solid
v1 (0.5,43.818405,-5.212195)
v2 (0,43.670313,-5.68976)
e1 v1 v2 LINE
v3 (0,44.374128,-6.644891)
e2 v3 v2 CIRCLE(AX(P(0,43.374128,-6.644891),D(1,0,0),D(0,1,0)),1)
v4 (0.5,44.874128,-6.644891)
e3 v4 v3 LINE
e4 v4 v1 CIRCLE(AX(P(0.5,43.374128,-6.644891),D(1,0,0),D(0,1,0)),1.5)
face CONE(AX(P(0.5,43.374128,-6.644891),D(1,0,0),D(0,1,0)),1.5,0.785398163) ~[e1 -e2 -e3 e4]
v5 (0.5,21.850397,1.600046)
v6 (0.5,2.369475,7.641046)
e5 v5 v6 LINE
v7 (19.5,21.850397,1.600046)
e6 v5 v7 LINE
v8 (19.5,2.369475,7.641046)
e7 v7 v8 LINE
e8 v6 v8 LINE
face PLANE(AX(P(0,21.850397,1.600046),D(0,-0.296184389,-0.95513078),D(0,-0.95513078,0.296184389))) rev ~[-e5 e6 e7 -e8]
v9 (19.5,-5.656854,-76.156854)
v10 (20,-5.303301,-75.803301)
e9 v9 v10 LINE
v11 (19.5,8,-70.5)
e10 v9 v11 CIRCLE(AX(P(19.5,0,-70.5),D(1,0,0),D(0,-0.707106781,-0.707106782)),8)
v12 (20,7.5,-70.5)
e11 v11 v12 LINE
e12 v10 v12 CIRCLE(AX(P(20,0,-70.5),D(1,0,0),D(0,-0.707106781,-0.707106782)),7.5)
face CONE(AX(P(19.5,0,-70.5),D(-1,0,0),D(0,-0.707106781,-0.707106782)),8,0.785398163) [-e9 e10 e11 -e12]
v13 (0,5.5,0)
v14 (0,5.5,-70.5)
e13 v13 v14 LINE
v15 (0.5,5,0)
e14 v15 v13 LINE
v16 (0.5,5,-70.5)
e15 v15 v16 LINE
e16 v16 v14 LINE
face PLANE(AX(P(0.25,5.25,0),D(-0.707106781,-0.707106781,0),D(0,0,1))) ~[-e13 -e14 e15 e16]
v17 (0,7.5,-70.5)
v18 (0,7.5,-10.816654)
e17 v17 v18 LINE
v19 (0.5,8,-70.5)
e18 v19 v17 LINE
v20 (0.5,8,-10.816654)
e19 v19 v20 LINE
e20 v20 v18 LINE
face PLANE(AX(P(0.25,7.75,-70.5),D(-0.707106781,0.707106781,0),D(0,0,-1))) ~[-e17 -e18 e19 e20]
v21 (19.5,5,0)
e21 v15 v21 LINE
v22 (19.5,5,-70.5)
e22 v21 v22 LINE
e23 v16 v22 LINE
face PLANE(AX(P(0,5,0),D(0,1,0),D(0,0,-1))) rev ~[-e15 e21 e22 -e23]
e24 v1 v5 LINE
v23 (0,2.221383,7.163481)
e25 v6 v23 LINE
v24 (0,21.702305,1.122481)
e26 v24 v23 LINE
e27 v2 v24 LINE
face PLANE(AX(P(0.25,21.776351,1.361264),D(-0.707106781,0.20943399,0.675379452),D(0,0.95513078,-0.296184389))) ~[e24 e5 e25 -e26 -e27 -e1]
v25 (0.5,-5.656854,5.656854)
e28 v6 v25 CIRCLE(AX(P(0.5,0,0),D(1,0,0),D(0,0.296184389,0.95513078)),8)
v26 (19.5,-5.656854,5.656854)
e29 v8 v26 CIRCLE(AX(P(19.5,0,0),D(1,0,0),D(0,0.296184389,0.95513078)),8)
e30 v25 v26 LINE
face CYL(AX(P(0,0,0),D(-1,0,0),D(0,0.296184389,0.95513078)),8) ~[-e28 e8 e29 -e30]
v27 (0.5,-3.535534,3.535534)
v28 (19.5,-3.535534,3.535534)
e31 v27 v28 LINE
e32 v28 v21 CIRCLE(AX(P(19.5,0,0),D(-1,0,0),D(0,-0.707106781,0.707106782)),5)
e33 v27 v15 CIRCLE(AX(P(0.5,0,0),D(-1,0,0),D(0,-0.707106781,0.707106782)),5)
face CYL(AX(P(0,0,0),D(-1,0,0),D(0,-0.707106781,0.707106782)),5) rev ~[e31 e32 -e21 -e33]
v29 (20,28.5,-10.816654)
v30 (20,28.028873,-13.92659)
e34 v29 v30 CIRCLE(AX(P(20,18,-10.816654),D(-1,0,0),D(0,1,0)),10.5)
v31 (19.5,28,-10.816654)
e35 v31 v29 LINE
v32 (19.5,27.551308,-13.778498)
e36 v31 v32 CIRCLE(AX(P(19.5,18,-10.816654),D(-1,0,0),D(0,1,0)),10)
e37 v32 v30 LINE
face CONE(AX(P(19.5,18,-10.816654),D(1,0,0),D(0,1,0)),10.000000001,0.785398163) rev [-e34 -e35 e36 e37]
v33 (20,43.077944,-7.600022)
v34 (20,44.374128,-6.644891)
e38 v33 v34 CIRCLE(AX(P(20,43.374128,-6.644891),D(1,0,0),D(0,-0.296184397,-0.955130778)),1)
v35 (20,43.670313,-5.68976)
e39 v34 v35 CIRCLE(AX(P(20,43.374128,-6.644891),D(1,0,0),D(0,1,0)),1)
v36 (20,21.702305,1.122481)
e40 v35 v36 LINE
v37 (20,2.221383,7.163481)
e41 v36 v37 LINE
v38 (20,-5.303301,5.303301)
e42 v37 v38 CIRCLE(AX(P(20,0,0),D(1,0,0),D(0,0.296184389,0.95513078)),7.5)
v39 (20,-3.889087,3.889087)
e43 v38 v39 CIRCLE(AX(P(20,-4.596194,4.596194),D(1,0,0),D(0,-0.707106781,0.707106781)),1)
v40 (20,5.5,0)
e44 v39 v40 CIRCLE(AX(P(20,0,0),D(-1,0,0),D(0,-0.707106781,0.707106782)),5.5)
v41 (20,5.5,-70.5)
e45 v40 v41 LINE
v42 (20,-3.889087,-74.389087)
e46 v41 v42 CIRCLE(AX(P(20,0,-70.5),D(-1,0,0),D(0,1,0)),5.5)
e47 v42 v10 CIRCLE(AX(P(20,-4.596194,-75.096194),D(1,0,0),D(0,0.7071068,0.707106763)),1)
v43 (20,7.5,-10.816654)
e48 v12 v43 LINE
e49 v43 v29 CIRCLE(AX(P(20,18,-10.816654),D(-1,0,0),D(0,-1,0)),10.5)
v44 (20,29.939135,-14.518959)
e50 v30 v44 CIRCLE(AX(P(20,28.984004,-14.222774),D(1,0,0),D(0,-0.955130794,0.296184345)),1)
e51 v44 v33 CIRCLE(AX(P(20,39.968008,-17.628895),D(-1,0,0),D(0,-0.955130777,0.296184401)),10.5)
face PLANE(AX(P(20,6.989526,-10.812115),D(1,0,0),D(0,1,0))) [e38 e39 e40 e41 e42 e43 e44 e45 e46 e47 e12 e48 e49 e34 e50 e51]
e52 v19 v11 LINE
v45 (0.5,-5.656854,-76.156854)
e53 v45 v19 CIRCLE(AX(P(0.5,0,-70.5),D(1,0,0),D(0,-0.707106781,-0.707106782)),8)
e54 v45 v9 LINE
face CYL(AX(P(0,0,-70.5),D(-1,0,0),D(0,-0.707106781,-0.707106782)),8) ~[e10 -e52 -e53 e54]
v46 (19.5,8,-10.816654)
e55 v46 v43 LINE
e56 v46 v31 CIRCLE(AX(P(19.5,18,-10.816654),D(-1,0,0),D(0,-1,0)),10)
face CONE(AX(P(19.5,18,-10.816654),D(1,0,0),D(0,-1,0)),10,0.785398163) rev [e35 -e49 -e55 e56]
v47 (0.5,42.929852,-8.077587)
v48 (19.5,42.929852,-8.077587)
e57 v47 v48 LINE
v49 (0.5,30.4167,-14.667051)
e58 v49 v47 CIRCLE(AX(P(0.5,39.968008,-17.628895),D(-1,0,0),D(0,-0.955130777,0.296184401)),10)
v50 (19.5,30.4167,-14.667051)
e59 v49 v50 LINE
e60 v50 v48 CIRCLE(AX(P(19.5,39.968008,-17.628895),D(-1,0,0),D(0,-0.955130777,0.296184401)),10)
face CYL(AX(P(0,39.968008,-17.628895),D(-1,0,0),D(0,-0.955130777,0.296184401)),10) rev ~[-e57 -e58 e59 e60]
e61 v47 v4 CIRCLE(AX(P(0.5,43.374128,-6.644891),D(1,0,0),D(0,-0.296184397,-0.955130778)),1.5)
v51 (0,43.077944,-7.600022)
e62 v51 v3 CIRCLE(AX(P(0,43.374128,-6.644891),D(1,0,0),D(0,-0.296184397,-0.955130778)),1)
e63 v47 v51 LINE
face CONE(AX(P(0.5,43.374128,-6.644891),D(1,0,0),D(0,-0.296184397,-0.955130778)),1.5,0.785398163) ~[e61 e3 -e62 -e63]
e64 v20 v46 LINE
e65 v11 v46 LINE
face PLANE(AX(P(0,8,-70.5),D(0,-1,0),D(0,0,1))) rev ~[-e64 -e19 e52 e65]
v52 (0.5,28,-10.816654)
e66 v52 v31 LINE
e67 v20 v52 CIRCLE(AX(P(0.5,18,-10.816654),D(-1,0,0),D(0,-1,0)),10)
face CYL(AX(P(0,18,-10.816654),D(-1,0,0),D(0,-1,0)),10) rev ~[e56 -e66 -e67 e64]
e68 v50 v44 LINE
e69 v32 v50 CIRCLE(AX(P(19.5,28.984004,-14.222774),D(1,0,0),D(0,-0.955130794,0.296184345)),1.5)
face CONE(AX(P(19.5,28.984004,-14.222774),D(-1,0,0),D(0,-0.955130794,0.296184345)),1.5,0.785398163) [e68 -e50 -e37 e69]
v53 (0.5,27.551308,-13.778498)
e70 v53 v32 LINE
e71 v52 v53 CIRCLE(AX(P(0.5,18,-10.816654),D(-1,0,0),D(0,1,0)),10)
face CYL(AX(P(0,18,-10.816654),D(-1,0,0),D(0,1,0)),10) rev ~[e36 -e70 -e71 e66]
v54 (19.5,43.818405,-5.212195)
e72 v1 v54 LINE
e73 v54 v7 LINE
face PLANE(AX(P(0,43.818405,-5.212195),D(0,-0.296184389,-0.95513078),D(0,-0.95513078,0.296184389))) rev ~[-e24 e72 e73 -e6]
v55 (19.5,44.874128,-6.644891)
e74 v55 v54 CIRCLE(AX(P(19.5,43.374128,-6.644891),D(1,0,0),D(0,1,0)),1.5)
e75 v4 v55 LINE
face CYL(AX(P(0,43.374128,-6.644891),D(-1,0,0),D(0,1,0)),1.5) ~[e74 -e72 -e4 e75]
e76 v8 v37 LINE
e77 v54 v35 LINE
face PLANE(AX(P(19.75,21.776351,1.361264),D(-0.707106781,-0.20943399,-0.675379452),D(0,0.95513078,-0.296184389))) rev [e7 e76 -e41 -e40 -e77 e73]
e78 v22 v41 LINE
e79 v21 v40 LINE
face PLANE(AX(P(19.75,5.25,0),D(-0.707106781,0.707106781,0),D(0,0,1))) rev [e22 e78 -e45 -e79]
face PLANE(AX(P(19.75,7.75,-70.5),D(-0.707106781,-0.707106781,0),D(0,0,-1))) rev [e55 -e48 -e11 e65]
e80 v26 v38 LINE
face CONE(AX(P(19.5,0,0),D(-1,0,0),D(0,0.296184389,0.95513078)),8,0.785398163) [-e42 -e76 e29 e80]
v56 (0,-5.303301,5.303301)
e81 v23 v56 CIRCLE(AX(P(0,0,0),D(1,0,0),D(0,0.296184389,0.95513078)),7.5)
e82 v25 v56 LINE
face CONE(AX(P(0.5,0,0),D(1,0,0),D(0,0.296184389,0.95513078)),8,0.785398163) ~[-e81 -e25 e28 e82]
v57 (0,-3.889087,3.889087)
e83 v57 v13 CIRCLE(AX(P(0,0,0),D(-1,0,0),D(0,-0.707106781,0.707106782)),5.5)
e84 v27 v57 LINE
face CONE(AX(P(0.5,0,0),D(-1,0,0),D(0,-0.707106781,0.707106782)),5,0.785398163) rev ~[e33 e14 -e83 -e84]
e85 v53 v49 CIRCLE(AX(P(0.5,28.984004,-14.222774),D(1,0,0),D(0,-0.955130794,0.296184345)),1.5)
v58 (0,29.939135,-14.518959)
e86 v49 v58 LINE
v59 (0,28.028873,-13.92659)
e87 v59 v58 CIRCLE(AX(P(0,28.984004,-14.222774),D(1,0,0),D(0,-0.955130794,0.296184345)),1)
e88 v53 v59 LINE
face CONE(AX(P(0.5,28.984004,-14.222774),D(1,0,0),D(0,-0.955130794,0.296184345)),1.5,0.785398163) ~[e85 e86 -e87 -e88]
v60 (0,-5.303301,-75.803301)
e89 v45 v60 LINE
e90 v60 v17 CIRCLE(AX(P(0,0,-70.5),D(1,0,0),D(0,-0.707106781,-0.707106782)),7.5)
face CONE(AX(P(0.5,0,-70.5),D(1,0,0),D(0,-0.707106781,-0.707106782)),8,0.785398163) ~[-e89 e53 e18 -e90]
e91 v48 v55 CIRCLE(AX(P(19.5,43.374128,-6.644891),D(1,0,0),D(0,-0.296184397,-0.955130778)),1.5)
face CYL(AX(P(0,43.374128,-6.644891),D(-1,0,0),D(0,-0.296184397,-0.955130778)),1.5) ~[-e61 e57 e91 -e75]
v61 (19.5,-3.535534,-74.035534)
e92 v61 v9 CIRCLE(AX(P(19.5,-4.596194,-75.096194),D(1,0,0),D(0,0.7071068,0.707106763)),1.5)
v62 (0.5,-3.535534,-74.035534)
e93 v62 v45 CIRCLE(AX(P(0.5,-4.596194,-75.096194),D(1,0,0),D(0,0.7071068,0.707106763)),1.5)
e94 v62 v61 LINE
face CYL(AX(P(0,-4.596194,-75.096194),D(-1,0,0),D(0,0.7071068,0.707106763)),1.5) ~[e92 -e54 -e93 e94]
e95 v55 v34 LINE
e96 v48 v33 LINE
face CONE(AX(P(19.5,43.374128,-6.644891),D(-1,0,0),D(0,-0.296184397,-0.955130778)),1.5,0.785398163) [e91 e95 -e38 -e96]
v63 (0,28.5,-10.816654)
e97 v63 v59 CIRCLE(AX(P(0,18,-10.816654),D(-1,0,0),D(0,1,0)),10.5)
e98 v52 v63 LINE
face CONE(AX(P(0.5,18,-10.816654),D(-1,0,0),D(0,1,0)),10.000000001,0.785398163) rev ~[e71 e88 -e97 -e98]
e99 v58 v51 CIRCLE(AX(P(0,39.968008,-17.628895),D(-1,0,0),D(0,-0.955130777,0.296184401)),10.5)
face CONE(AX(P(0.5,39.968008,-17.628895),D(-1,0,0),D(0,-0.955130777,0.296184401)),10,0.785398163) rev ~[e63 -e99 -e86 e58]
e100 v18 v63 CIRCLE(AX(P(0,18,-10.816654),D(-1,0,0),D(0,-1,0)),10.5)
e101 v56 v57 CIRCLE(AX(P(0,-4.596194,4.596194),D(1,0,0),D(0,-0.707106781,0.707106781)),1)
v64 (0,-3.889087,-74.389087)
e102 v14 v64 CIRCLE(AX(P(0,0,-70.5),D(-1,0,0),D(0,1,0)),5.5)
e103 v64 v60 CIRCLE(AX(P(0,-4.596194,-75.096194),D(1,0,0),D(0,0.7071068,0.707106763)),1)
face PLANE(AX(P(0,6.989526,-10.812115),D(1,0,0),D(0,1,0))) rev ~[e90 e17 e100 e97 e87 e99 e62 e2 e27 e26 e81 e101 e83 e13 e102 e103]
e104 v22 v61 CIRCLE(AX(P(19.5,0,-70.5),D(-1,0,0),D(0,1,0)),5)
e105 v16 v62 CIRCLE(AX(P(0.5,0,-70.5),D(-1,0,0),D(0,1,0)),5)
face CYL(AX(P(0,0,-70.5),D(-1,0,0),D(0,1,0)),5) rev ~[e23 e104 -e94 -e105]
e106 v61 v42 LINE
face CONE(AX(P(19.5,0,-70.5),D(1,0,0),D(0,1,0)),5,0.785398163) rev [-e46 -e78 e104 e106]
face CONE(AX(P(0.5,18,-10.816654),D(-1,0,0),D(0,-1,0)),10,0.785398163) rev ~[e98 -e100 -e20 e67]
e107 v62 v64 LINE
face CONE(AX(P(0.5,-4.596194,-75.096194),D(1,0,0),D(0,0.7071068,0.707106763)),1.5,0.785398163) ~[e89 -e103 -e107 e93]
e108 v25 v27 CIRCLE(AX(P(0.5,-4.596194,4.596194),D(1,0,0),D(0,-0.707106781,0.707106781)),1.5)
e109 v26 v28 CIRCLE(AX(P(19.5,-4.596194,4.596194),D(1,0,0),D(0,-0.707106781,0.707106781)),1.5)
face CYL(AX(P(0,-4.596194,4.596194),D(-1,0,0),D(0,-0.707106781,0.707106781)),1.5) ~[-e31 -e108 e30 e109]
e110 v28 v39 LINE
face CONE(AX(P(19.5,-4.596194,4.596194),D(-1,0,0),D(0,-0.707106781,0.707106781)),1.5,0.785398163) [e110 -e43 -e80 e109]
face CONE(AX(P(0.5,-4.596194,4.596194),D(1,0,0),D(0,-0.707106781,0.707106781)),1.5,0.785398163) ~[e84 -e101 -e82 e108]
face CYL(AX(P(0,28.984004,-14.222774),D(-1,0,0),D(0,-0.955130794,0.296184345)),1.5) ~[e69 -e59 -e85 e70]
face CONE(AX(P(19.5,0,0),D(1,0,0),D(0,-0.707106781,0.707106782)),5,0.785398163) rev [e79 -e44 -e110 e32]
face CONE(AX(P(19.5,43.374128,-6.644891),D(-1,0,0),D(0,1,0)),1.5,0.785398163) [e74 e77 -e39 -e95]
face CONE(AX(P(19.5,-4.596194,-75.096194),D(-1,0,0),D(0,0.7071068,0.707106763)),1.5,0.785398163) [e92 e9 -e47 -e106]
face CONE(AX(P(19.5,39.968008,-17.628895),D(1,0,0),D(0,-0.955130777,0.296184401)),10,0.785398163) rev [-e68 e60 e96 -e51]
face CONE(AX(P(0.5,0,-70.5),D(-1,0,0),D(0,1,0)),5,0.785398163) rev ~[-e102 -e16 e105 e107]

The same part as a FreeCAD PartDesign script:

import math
import FreeCAD as App
import Part
import Sketcher
from FreeCAD import Vector


def edges_at(feature, points):
    """Names of the edges that pass closest to the given points."""
    edges = feature.Shape.Edges
    near = lambda p: min(range(len(edges)), key=lambda i: edges[i].distToShape(Part.Vertex(*p))[0])
    return sorted({f"Edge{near(p) + 1}" for p in points})

doc = App.newDocument("Part")
body = doc.addObject("PartDesign::Body", "Body")

# Sketch on YZ plane
sketch1 = body.newObject("Sketcher::SketchObject", "Sketch")
sketch1.AttachmentSupport = (doc.getObject("YZ_Plane"), [""])
sketch1.MapMode = "FlatFace"
sketch1.addGeometry(Part.ArcOfCircle(Part.Circle(Vector(0, 0, 0), Vector(0, 0, 1), 8), math.radians(73), math.radians(135)), False)
sketch1.addGeometry(Part.ArcOfCircle(Part.Circle(Vector(-4.6, 4.6, 0), Vector(0, 0, 1), 1.5), math.radians(135), math.radians(315)), False)
sketch1.addGeometry(Part.ArcOfCircle(Part.Circle(Vector(0, 0, 0), Vector(0, 0, 1), 5), math.radians(0), math.radians(135)), False)
sketch1.addGeometry(Part.LineSegment(Vector(5, 0, 0), Vector(5, -70.5, 0)), False)
sketch1.addGeometry(Part.ArcOfCircle(Part.Circle(Vector(0, -70.5, 0), Vector(0, 0, 1), 5), math.radians(-135), math.radians(0)), False)
sketch1.addGeometry(Part.ArcOfCircle(Part.Circle(Vector(-4.6, -75.1, 0), Vector(0, 0, 1), 1.5), math.radians(45), math.radians(225)), False)
sketch1.addGeometry(Part.ArcOfCircle(Part.Circle(Vector(0, -70.5, 0), Vector(0, 0, 1), 8), math.radians(-135), math.radians(0)), False)
sketch1.addGeometry(Part.LineSegment(Vector(8, -70.5, 0), Vector(8, -10.8, 0)), False)
sketch1.addGeometry(Part.ArcOfCircle(Part.Circle(Vector(18, -10.8, 0), Vector(0, 0, 1), 10), math.radians(0), math.radians(180)), False)
sketch1.addGeometry(Part.ArcOfCircle(Part.Circle(Vector(18, -10.8, 0), Vector(0, 0, 1), 10), math.radians(-17.23), math.radians(0)), False)
sketch1.addGeometry(Part.ArcOfCircle(Part.Circle(Vector(29, -14.2, 0), Vector(0, 0, 1), 1.5), math.radians(163), math.radians(343)), False)
sketch1.addGeometry(Part.ArcOfCircle(Part.Circle(Vector(40, -17.6, 0), Vector(0, 0, 1), 10), math.radians(73), math.radians(163)), False)
sketch1.addGeometry(Part.ArcOfCircle(Part.Circle(Vector(43.4, -6.6, 0), Vector(0, 0, 1), 1.5), math.radians(-107), math.radians(0)), False)
sketch1.addGeometry(Part.ArcOfCircle(Part.Circle(Vector(43.4, -6.6, 0), Vector(0, 0, 1), 1.5), math.radians(0), math.radians(73)), False)
sketch1.addGeometry(Part.LineSegment(Vector(43.8, -5.2, 0), Vector(21.9, 1.6, 0)), False)
sketch1.addGeometry(Part.LineSegment(Vector(21.9, 1.6, 0), Vector(2.4, 7.6, 0)), False)
sketch1.addConstraint(Sketcher.Constraint("Tangent", 0, 2, 1, 1))
sketch1.addConstraint(Sketcher.Constraint("Tangent", 1, 2, 2, 2))
sketch1.addConstraint(Sketcher.Constraint("Tangent", 2, 1, 3, 1))
sketch1.addConstraint(Sketcher.Constraint("Tangent", 3, 2, 4, 2))
sketch1.addConstraint(Sketcher.Constraint("Tangent", 4, 1, 5, 1))
sketch1.addConstraint(Sketcher.Constraint("Tangent", 5, 2, 6, 1))
sketch1.addConstraint(Sketcher.Constraint("Tangent", 6, 2, 7, 1))
sketch1.addConstraint(Sketcher.Constraint("Tangent", 7, 2, 8, 2))
sketch1.addConstraint(Sketcher.Constraint("Tangent", 8, 1, 9, 2))
sketch1.addConstraint(Sketcher.Constraint("Tangent", 9, 1, 10, 1))
sketch1.addConstraint(Sketcher.Constraint("Tangent", 10, 2, 11, 2))
sketch1.addConstraint(Sketcher.Constraint("Tangent", 11, 1, 12, 1))
sketch1.addConstraint(Sketcher.Constraint("Tangent", 12, 2, 13, 1))
sketch1.addConstraint(Sketcher.Constraint("Tangent", 13, 2, 14, 1))
sketch1.addConstraint(Sketcher.Constraint("Coincident", 14, 2, 15, 1))
sketch1.addConstraint(Sketcher.Constraint("Tangent", 15, 2, 0, 1))
sketch1.addConstraint(Sketcher.Constraint("Vertical", 3))
sketch1.addConstraint(Sketcher.Constraint("Vertical", 7))
sketch1.addConstraint(Sketcher.Constraint("Coincident", 0, 3, -1, 1))
sketch1.addConstraint(Sketcher.Constraint("Coincident", 2, 3, -1, 1))
sketch1.addConstraint(Sketcher.Constraint("Coincident", 6, 3, 4, 3))
sketch1.addConstraint(Sketcher.Constraint("Equal", 2, 4))
sketch1.addConstraint(Sketcher.Constraint("Equal", 1, 5))
sketch1.addConstraint(Sketcher.Constraint("Equal", 8, 9))
sketch1.addConstraint(Sketcher.Constraint("Equal", 5, 10))
sketch1.addConstraint(Sketcher.Constraint("Equal", 9, 11))
sketch1.addConstraint(Sketcher.Constraint("Equal", 10, 12))
sketch1.addConstraint(Sketcher.Constraint("Equal", 12, 13))
sketch1.addConstraint(Sketcher.Constraint("Parallel", 14, 15))
sketch1.addConstraint(Sketcher.Constraint("Horizontal", 7, 2, 8, 1))
sketch1.addConstraint(Sketcher.Constraint("Horizontal", 13, 3, 12, 2))
sketch1.addConstraint(Sketcher.Constraint("Vertical", 1, 3, 5, 3))
sketch1.addConstraint(Sketcher.Constraint("Radius", 0, 8.0))
sketch1.addConstraint(Sketcher.Constraint("Radius", 2, 5.0))
sketch1.addConstraint(Sketcher.Constraint("Radius", 8, 10.0))
sketch1.addConstraint(Sketcher.Constraint("Distance", 14, 23.0))
sketch1.addConstraint(Sketcher.Constraint("DistanceY", 3, 2, 3, 1, 70.5))
sketch1.addConstraint(Sketcher.Constraint("DistanceX", -1, 1, 10, 2, 30.4167))
sketch1.addConstraint(Sketcher.Constraint("DistanceX", 1, 3, 10, 3, 33.580198))
sketch1.addConstraint(Sketcher.Constraint("DistanceX", 9, 1, 11, 3, 12.4167))
sketch1.addConstraint(Sketcher.Constraint("DistanceY", 11, 3, 13, 2, 12.4167))
sketch1.addConstraint(Sketcher.Constraint("DistanceY", 8, 3, 14, 2, 12.4167))
pad1 = body.newObject("PartDesign::Pad", "Pad")
pad1.Profile = sketch1
pad1.Length = 20
doc.recompute()

chamfer = body.newObject("PartDesign::Chamfer", "Chamfer")
chamfer.Base = (pad1, edges_at(pad1, [
    (20, -1.92, 7.766),
    (20, -5.657, 3.536),
    (20, 1.913, 4.619),
    (20, 5, -35.25),
    (20, 1.913, -75.119),
    (20, -5.657, -74.036),
    (20, 3.061, -77.891),
    (20, 8, -40.658),
    (20, 18, -0.817),
    (20, 28.54, -15.655),
    (20, 35.309, -8.781),
    (20, 44.264, -7.852),
    (20, 32.834, -1.806),
    (0, -1.92, 7.766),
    (0, -5.657, 3.536),
    (0, 1.913, 4.619),
    (0, 5, -35.25),
    (0, 1.913, -75.119),
    (0, -5.657, -74.036),
    (0, 3.061, -77.891),
    (0, 8, -40.658),
    (0, 18, -0.817),
    (0, 28.54, -15.655),
    (0, 35.309, -8.781),
    (0, 44.264, -7.852),
    (0, 32.834, -1.806),
]))
chamfer.Size = 0.5

doc.recompute()
